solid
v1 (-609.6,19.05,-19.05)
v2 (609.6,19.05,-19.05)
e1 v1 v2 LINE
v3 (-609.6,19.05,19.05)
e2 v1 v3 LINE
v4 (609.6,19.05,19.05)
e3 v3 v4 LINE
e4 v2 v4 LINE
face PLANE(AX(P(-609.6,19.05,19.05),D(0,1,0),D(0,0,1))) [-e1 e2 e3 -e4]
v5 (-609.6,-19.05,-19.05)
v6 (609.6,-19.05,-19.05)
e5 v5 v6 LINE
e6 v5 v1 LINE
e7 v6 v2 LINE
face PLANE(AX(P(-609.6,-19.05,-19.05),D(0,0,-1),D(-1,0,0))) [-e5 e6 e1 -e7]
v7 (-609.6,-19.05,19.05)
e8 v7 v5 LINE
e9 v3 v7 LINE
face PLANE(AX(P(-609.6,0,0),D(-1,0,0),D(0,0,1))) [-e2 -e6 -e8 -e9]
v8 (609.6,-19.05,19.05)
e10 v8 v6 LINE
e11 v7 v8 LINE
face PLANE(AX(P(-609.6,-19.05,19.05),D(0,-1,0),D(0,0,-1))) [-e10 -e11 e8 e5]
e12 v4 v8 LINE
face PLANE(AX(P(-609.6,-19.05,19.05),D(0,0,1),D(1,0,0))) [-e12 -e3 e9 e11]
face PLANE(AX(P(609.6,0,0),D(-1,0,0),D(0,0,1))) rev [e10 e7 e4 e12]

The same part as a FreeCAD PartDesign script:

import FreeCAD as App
import Part
import Sketcher
from FreeCAD import Vector
Q = App.Units.Quantity

doc = App.newDocument("Part")
body = doc.addObject("PartDesign::Body", "Body")

# Sketch on YZ plane
sketch1 = body.newObject("Sketcher::SketchObject", "Sketch")
sketch1.AttachmentSupport = (doc.getObject("YZ_Plane"), [""])
sketch1.MapMode = "FlatFace"
sketch1.addGeometry(Part.LineSegment(Vector(19, 19, 0), Vector(-19, 19, 0)), False)
sketch1.addGeometry(Part.LineSegment(Vector(-19, 19, 0), Vector(-19, -19, 0)), False)
sketch1.addGeometry(Part.LineSegment(Vector(-19, -19, 0), Vector(19, -19, 0)), False)
sketch1.addGeometry(Part.LineSegment(Vector(19, -19, 0), Vector(19, 19, 0)), False)
sketch1.addConstraint(Sketcher.Constraint("Coincident", 0, 2, 1, 1))
sketch1.addConstraint(Sketcher.Constraint("Coincident", 1, 2, 2, 1))
sketch1.addConstraint(Sketcher.Constraint("Coincident", 2, 2, 3, 1))
sketch1.addConstraint(Sketcher.Constraint("Coincident", 3, 2, 0, 1))
sketch1.addConstraint(Sketcher.Constraint("Horizontal", 0))
sketch1.addConstraint(Sketcher.Constraint("Vertical", 1))
sketch1.addConstraint(Sketcher.Constraint("Horizontal", 2))
sketch1.addConstraint(Sketcher.Constraint("Vertical", 3))
sketch1.addConstraint(Sketcher.Constraint("Symmetric", 0, 2, 2, 2, -1, 1))
sketch1.addConstraint(Sketcher.Constraint("Equal", 2, 1))
sketch1.addConstraint(Sketcher.Constraint("DistanceX", 0, 2, 0, 1, Q("1.5 in")))
pad1 = body.newObject("PartDesign::Pad", "Pad")
pad1.Profile = sketch1
pad1.Type = "TwoLengths"
pad1.Length = Q("24 in")
pad1.Length2 = Q("24 in")

doc.recompute()
